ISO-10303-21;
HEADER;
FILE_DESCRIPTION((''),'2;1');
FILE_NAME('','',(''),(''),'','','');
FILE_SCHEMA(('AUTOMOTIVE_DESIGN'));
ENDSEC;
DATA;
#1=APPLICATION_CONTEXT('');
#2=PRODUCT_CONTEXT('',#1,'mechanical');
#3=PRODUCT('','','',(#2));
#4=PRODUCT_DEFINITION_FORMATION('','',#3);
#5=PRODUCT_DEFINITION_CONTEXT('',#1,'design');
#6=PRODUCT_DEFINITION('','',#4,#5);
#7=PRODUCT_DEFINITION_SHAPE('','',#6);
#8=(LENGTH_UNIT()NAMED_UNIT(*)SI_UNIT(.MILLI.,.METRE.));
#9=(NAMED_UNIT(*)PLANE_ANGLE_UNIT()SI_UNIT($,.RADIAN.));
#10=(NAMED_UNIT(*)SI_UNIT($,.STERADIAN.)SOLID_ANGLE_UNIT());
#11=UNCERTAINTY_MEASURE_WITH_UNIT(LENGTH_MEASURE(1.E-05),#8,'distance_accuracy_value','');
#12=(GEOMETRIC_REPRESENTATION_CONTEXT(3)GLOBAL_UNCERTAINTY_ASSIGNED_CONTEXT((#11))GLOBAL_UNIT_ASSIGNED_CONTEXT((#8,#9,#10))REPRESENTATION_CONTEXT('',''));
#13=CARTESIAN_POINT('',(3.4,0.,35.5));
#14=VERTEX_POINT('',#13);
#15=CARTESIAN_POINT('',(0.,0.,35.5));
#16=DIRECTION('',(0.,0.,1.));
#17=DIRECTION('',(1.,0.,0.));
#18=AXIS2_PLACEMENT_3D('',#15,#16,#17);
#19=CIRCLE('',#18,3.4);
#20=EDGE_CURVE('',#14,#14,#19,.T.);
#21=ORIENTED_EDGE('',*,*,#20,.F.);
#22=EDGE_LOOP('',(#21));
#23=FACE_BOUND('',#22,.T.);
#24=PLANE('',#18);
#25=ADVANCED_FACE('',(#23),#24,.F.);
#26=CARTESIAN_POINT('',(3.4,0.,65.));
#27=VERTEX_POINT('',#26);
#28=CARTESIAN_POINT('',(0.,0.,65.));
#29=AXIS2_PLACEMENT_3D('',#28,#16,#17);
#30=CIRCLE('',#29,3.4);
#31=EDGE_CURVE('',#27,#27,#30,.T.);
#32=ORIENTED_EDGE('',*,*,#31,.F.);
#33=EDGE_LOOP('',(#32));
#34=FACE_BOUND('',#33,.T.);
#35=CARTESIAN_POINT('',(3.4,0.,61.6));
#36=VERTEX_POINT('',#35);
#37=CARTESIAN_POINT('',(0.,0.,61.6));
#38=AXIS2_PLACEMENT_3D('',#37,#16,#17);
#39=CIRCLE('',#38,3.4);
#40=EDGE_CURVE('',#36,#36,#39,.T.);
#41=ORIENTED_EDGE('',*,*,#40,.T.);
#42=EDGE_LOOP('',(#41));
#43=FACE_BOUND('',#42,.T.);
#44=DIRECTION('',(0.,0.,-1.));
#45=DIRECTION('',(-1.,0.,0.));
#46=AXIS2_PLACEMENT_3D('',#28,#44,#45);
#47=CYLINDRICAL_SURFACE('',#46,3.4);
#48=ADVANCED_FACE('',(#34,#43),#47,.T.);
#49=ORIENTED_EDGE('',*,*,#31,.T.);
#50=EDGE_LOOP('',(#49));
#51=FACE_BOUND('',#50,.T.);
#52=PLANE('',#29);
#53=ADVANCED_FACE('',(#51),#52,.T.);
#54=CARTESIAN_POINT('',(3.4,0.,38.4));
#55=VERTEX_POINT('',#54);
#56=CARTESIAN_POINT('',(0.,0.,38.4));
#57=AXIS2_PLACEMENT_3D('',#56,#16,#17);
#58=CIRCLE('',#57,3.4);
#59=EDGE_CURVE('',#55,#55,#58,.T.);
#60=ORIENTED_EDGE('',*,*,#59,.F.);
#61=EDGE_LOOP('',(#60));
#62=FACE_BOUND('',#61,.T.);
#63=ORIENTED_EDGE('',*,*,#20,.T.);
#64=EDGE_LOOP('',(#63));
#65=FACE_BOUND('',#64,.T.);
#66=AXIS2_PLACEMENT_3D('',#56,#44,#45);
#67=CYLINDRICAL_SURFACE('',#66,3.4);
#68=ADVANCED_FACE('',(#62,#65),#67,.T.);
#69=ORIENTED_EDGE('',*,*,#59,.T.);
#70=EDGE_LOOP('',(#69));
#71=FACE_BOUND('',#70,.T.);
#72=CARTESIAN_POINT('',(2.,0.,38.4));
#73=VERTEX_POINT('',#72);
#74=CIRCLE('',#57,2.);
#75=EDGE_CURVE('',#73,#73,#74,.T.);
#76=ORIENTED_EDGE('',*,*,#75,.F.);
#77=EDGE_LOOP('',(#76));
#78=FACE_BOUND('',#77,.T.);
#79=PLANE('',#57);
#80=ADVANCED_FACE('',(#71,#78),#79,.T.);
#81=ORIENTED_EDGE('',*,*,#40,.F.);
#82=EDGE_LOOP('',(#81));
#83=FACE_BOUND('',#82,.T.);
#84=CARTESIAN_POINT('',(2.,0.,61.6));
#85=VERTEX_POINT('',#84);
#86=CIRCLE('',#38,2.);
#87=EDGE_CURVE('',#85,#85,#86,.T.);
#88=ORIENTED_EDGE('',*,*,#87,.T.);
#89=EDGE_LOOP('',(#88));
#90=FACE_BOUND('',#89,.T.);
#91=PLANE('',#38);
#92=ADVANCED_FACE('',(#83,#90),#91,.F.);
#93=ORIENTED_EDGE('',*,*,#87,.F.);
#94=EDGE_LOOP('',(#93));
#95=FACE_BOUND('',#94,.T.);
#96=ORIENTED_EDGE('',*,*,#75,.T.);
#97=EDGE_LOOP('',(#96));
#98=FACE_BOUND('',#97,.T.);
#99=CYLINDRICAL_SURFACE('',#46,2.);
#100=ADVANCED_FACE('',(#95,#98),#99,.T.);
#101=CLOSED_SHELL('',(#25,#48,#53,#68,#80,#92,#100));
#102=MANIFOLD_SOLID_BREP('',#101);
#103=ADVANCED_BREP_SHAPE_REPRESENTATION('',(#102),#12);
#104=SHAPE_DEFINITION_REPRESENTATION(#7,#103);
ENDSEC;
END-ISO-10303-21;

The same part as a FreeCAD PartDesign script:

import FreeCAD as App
import Part
import Sketcher
from FreeCAD import Vector

doc = App.newDocument("Part")
body = doc.addObject("PartDesign::Body", "Body")

sketch1 = body.newObject("Sketcher::SketchObject", "Sketch")
sketch1.AttachmentSupport = (doc.getObject("XY_Plane"), [""])
sketch1.MapMode = "FlatFace"
sketch1.AttachmentOffset = App.Placement(Vector(0, 0, 35.5), App.Rotation())
sketch1.addGeometry(Part.Circle(Vector(0, 0, 0), Vector(0, 0, 1), 2), False)
sketch1.addConstraint(Sketcher.Constraint("Coincident", 0, 3, -1, 1))
sketch1.addConstraint(Sketcher.Constraint("Diameter", 0, 4.0))
pad1 = body.newObject("PartDesign::Pad", "Pad")
pad1.Profile = sketch1
pad1.Length = 29.5

sketch2 = body.newObject("Sketcher::SketchObject", "Sketch001")
sketch2.AttachmentSupport = (doc.getObject("XY_Plane"), [""])
sketch2.MapMode = "FlatFace"
sketch2.AttachmentOffset = App.Placement(Vector(0, 0, 61.6), App.Rotation())
sketch2.addGeometry(Part.Circle(Vector(0, 0, 0), Vector(0, 0, 1), 3.4), False)
sketch2.addConstraint(Sketcher.Constraint("Coincident", 0, 3, -1, 1))
sketch2.addConstraint(Sketcher.Constraint("Diameter", 0, 6.8))
pad2 = body.newObject("PartDesign::Pad", "Pad001")
pad2.Profile = sketch2
pad2.Length = 3.4

sketch3 = body.newObject("Sketcher::SketchObject", "Sketch002")
sketch3.AttachmentSupport = (doc.getObject("XY_Plane"), [""])
sketch3.MapMode = "FlatFace"
sketch3.AttachmentOffset = App.Placement(Vector(0, 0, 35.5), App.Rotation())
sketch3.addGeometry(Part.Circle(Vector(0, 0, 0), Vector(0, 0, 1), 3.4), False)
sketch3.addConstraint(Sketcher.Constraint("Coincident", 0, 3, -1, 1))
sketch3.addConstraint(Sketcher.Constraint("Diameter", 0, 6.8))
pad3 = body.newObject("PartDesign::Pad", "Pad002")
pad3.Profile = sketch3
pad3.Length = 2.9

doc.recompute()
